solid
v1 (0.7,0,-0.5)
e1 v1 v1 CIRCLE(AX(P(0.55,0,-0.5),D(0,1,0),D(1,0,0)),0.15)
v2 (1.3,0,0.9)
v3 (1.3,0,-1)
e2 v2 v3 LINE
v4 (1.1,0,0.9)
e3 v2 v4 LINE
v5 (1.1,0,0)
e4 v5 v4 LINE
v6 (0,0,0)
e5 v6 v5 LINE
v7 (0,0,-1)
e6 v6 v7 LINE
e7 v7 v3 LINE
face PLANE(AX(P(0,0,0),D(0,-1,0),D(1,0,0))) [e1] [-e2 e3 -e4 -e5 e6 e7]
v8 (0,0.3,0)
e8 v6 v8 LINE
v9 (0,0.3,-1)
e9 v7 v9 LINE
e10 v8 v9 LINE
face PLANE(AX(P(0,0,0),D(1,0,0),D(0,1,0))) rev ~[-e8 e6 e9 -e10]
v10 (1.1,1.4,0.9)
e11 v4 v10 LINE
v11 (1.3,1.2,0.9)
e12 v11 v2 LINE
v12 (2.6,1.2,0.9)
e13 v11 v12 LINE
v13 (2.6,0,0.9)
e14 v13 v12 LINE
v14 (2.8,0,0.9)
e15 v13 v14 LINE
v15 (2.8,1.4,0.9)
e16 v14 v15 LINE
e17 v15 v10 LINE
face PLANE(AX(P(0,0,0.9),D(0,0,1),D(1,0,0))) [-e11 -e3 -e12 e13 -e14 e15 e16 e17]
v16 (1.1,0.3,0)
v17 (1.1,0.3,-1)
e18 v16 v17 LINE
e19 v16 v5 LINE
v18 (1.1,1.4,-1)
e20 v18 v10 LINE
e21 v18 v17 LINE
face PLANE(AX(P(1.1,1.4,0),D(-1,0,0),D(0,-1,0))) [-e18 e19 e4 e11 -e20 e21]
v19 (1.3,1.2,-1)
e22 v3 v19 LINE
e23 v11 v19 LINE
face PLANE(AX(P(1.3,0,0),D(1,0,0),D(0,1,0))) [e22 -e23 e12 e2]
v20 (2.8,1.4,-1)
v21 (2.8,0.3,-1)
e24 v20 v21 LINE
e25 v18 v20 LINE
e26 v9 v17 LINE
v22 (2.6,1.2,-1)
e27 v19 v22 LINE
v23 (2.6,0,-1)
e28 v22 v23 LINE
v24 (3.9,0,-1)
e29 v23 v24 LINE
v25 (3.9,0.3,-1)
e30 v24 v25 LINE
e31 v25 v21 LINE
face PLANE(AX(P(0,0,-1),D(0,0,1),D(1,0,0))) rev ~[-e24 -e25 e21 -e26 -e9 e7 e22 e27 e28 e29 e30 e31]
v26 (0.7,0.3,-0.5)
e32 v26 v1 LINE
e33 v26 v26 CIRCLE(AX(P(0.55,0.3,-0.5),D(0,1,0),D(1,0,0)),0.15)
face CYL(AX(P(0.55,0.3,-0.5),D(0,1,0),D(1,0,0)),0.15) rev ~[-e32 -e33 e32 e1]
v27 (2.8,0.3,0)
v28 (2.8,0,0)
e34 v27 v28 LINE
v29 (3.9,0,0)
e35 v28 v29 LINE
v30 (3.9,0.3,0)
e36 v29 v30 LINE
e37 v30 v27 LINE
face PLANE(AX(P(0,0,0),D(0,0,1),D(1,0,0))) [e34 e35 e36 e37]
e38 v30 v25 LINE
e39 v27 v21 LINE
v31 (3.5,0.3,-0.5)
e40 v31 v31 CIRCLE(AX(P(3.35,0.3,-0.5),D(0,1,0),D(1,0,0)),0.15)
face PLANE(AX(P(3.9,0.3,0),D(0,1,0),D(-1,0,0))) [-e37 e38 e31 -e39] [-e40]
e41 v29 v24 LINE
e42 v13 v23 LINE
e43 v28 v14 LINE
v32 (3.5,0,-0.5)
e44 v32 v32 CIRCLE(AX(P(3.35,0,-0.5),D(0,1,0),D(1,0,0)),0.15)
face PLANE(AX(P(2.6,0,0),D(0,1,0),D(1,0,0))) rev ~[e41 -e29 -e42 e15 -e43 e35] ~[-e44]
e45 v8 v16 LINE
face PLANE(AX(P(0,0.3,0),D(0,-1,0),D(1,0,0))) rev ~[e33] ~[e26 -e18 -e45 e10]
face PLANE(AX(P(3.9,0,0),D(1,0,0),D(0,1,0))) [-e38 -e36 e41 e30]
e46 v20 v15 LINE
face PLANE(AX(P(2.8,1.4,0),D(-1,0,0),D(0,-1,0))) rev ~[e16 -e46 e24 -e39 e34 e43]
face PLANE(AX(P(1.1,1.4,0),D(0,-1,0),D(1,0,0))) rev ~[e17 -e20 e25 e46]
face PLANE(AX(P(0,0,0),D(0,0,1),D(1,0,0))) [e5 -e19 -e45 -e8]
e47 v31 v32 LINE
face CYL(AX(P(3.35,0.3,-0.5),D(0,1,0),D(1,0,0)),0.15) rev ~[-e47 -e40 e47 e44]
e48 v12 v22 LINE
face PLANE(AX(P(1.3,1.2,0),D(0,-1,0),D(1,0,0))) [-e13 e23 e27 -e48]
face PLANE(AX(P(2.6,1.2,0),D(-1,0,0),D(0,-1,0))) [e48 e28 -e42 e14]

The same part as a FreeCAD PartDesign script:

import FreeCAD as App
import Part
import Sketcher


def add_polygon(sketch, points):
    """Adds a closed chain of lines whose ends are joined by coincident constraints."""
    first, n = sketch.GeometryCount, len(points)
    for a, b in zip(points, points[1:] + points[:1]):
        sketch.addGeometry(Part.LineSegment(App.Vector(*a, 0), App.Vector(*b, 0)), False)
    for i in range(n):
        sketch.addConstraint(Sketcher.Constraint("Coincident", first + i, 2, first + (i + 1) % n, 1))

doc = App.newDocument("Part")
body = doc.addObject("PartDesign::Body", "Body")

# Sketch on XY plane
sketch1 = body.newObject("Sketcher::SketchObject", "Sketch")
sketch1.AttachmentSupport = (doc.getObject("XY_Plane"), [""])
sketch1.MapMode = "FlatFace"
add_polygon(sketch1, [(2.8, 0.3), (2.8, 1.4), (1.1, 1.4), (1.1, 0.3), (0, 0.3), (0, 0), (1.3, 0), (1.3, 1.2), (2.6, 1.2), (2.6, 0), (3.9, 0), (3.9, 0.3)])  # lines 0-11
sketch1.addConstraint([
    Sketcher.Constraint("Vertical", 0),
    Sketcher.Constraint("Horizontal", 1),
    Sketcher.Constraint("Vertical", 2),
    Sketcher.Constraint("Horizontal", 3),
    Sketcher.Constraint("Vertical", 4),
    Sketcher.Constraint("Horizontal", 5),
    Sketcher.Constraint("Vertical", 6),
    Sketcher.Constraint("Horizontal", 7),
    Sketcher.Constraint("Vertical", 8),
    Sketcher.Constraint("Horizontal", 9),
    Sketcher.Constraint("Vertical", 10),
    Sketcher.Constraint("Horizontal", 11),
    Sketcher.Constraint("Coincident", 4, 2, -1, 1),
    Sketcher.Constraint("PointOnObject", 8, 2, -1),
    Sketcher.Constraint("Horizontal", 3, 2, 10, 2),
    Sketcher.Constraint("Equal", 5, 7),
    Sketcher.Constraint("Equal", 7, 9),
    Sketcher.Constraint("Equal", 3, 11),
    Sketcher.Constraint("Equal", 11, 0),
    Sketcher.Constraint("DistanceX", 1, 2, 1, 1, 1.7),
    Sketcher.Constraint("DistanceX", 3, 2, 3, 1, 1.1),
    Sketcher.Constraint("DistanceY", 4, 2, 4, 1, 0.3),
    Sketcher.Constraint("DistanceY", 6, 1, 6, 2, 1.2),
])
pad1 = body.newObject("PartDesign::Pad", "Pad")
pad1.Profile = sketch1
pad1.Length = 1
pad1.Reversed = True

# Sketch on XY plane
sketch2 = body.newObject("Sketcher::SketchObject", "Sketch001")
sketch2.AttachmentSupport = (doc.getObject("XY_Plane"), [""])
sketch2.MapMode = "FlatFace"
add_polygon(sketch2, [(1.1, 1.4), (1.1, 0), (1.3, 0), (1.3, 1.2), (2.6, 1.2), (2.6, 0), (2.8, 0), (2.8, 1.4)])  # lines 0-7
sketch2.addConstraint([
    Sketcher.Constraint("Vertical", 0),
    Sketcher.Constraint("Horizontal", 1),
    Sketcher.Constraint("Vertical", 2),
    Sketcher.Constraint("Horizontal", 3),
    Sketcher.Constraint("Vertical", 4),
    Sketcher.Constraint("Horizontal", 5),
    Sketcher.Constraint("Vertical", 6),
    Sketcher.Constraint("Horizontal", 7),
    Sketcher.Constraint("PointOnObject", 0, 2, -1),
    Sketcher.Constraint("PointOnObject", 4, 2, -1),
    Sketcher.Constraint("Equal", 1, 5),
    Sketcher.Constraint("DistanceX", 1, 1, 1, 2, 0.2),
    Sketcher.Constraint("DistanceX", 3, 1, 3, 2, 1.3),
    Sketcher.Constraint("DistanceY", 0, 2, 0, 1, 1.4),
    Sketcher.Constraint("DistanceY", 2, 1, 2, 2, 1.2),
    Sketcher.Constraint("DistanceX", -1, 1, 0, 2, 1.1),
])
pad2 = body.newObject("PartDesign::Pad", "Pad001")
pad2.Profile = sketch2
pad2.Length = 0.9

# Sketch on XZ plane
sketch3 = body.newObject("Sketcher::SketchObject", "Sketch002")
sketch3.AttachmentSupport = (doc.getObject("XZ_Plane"), [""])
sketch3.MapMode = "FlatFace"
sketch3.AttachmentOffset = App.Placement(App.Vector(0, 0, -0.3), App.Rotation())
sketch3.addGeometry([
    Part.Circle(App.Vector(0.55, -0.5, 0), App.Vector(0, 0, 1), 0.15),
    Part.Circle(App.Vector(3.35, -0.5, 0), App.Vector(0, 0, 1), 0.15),
], False)
sketch3.addConstraint([
    Sketcher.Constraint("Equal", 0, 1),
    Sketcher.Constraint("Horizontal", 0, 3, 1, 3),
    Sketcher.Constraint("Diameter", 0, 0.3),
    Sketcher.Constraint("DistanceY", 0, 3, -1, 1, 0.5),
    Sketcher.Constraint("DistanceX", 0, 3, 1, 3, 2.8),
    Sketcher.Constraint("DistanceX", -1, 1, 0, 3, 0.55),
])
pocket1 = body.newObject("PartDesign::Pocket", "Pocket")
pocket1.Profile = sketch3
pocket1.Length = 0.9
pocket1.Reversed = True

doc.recompute()
